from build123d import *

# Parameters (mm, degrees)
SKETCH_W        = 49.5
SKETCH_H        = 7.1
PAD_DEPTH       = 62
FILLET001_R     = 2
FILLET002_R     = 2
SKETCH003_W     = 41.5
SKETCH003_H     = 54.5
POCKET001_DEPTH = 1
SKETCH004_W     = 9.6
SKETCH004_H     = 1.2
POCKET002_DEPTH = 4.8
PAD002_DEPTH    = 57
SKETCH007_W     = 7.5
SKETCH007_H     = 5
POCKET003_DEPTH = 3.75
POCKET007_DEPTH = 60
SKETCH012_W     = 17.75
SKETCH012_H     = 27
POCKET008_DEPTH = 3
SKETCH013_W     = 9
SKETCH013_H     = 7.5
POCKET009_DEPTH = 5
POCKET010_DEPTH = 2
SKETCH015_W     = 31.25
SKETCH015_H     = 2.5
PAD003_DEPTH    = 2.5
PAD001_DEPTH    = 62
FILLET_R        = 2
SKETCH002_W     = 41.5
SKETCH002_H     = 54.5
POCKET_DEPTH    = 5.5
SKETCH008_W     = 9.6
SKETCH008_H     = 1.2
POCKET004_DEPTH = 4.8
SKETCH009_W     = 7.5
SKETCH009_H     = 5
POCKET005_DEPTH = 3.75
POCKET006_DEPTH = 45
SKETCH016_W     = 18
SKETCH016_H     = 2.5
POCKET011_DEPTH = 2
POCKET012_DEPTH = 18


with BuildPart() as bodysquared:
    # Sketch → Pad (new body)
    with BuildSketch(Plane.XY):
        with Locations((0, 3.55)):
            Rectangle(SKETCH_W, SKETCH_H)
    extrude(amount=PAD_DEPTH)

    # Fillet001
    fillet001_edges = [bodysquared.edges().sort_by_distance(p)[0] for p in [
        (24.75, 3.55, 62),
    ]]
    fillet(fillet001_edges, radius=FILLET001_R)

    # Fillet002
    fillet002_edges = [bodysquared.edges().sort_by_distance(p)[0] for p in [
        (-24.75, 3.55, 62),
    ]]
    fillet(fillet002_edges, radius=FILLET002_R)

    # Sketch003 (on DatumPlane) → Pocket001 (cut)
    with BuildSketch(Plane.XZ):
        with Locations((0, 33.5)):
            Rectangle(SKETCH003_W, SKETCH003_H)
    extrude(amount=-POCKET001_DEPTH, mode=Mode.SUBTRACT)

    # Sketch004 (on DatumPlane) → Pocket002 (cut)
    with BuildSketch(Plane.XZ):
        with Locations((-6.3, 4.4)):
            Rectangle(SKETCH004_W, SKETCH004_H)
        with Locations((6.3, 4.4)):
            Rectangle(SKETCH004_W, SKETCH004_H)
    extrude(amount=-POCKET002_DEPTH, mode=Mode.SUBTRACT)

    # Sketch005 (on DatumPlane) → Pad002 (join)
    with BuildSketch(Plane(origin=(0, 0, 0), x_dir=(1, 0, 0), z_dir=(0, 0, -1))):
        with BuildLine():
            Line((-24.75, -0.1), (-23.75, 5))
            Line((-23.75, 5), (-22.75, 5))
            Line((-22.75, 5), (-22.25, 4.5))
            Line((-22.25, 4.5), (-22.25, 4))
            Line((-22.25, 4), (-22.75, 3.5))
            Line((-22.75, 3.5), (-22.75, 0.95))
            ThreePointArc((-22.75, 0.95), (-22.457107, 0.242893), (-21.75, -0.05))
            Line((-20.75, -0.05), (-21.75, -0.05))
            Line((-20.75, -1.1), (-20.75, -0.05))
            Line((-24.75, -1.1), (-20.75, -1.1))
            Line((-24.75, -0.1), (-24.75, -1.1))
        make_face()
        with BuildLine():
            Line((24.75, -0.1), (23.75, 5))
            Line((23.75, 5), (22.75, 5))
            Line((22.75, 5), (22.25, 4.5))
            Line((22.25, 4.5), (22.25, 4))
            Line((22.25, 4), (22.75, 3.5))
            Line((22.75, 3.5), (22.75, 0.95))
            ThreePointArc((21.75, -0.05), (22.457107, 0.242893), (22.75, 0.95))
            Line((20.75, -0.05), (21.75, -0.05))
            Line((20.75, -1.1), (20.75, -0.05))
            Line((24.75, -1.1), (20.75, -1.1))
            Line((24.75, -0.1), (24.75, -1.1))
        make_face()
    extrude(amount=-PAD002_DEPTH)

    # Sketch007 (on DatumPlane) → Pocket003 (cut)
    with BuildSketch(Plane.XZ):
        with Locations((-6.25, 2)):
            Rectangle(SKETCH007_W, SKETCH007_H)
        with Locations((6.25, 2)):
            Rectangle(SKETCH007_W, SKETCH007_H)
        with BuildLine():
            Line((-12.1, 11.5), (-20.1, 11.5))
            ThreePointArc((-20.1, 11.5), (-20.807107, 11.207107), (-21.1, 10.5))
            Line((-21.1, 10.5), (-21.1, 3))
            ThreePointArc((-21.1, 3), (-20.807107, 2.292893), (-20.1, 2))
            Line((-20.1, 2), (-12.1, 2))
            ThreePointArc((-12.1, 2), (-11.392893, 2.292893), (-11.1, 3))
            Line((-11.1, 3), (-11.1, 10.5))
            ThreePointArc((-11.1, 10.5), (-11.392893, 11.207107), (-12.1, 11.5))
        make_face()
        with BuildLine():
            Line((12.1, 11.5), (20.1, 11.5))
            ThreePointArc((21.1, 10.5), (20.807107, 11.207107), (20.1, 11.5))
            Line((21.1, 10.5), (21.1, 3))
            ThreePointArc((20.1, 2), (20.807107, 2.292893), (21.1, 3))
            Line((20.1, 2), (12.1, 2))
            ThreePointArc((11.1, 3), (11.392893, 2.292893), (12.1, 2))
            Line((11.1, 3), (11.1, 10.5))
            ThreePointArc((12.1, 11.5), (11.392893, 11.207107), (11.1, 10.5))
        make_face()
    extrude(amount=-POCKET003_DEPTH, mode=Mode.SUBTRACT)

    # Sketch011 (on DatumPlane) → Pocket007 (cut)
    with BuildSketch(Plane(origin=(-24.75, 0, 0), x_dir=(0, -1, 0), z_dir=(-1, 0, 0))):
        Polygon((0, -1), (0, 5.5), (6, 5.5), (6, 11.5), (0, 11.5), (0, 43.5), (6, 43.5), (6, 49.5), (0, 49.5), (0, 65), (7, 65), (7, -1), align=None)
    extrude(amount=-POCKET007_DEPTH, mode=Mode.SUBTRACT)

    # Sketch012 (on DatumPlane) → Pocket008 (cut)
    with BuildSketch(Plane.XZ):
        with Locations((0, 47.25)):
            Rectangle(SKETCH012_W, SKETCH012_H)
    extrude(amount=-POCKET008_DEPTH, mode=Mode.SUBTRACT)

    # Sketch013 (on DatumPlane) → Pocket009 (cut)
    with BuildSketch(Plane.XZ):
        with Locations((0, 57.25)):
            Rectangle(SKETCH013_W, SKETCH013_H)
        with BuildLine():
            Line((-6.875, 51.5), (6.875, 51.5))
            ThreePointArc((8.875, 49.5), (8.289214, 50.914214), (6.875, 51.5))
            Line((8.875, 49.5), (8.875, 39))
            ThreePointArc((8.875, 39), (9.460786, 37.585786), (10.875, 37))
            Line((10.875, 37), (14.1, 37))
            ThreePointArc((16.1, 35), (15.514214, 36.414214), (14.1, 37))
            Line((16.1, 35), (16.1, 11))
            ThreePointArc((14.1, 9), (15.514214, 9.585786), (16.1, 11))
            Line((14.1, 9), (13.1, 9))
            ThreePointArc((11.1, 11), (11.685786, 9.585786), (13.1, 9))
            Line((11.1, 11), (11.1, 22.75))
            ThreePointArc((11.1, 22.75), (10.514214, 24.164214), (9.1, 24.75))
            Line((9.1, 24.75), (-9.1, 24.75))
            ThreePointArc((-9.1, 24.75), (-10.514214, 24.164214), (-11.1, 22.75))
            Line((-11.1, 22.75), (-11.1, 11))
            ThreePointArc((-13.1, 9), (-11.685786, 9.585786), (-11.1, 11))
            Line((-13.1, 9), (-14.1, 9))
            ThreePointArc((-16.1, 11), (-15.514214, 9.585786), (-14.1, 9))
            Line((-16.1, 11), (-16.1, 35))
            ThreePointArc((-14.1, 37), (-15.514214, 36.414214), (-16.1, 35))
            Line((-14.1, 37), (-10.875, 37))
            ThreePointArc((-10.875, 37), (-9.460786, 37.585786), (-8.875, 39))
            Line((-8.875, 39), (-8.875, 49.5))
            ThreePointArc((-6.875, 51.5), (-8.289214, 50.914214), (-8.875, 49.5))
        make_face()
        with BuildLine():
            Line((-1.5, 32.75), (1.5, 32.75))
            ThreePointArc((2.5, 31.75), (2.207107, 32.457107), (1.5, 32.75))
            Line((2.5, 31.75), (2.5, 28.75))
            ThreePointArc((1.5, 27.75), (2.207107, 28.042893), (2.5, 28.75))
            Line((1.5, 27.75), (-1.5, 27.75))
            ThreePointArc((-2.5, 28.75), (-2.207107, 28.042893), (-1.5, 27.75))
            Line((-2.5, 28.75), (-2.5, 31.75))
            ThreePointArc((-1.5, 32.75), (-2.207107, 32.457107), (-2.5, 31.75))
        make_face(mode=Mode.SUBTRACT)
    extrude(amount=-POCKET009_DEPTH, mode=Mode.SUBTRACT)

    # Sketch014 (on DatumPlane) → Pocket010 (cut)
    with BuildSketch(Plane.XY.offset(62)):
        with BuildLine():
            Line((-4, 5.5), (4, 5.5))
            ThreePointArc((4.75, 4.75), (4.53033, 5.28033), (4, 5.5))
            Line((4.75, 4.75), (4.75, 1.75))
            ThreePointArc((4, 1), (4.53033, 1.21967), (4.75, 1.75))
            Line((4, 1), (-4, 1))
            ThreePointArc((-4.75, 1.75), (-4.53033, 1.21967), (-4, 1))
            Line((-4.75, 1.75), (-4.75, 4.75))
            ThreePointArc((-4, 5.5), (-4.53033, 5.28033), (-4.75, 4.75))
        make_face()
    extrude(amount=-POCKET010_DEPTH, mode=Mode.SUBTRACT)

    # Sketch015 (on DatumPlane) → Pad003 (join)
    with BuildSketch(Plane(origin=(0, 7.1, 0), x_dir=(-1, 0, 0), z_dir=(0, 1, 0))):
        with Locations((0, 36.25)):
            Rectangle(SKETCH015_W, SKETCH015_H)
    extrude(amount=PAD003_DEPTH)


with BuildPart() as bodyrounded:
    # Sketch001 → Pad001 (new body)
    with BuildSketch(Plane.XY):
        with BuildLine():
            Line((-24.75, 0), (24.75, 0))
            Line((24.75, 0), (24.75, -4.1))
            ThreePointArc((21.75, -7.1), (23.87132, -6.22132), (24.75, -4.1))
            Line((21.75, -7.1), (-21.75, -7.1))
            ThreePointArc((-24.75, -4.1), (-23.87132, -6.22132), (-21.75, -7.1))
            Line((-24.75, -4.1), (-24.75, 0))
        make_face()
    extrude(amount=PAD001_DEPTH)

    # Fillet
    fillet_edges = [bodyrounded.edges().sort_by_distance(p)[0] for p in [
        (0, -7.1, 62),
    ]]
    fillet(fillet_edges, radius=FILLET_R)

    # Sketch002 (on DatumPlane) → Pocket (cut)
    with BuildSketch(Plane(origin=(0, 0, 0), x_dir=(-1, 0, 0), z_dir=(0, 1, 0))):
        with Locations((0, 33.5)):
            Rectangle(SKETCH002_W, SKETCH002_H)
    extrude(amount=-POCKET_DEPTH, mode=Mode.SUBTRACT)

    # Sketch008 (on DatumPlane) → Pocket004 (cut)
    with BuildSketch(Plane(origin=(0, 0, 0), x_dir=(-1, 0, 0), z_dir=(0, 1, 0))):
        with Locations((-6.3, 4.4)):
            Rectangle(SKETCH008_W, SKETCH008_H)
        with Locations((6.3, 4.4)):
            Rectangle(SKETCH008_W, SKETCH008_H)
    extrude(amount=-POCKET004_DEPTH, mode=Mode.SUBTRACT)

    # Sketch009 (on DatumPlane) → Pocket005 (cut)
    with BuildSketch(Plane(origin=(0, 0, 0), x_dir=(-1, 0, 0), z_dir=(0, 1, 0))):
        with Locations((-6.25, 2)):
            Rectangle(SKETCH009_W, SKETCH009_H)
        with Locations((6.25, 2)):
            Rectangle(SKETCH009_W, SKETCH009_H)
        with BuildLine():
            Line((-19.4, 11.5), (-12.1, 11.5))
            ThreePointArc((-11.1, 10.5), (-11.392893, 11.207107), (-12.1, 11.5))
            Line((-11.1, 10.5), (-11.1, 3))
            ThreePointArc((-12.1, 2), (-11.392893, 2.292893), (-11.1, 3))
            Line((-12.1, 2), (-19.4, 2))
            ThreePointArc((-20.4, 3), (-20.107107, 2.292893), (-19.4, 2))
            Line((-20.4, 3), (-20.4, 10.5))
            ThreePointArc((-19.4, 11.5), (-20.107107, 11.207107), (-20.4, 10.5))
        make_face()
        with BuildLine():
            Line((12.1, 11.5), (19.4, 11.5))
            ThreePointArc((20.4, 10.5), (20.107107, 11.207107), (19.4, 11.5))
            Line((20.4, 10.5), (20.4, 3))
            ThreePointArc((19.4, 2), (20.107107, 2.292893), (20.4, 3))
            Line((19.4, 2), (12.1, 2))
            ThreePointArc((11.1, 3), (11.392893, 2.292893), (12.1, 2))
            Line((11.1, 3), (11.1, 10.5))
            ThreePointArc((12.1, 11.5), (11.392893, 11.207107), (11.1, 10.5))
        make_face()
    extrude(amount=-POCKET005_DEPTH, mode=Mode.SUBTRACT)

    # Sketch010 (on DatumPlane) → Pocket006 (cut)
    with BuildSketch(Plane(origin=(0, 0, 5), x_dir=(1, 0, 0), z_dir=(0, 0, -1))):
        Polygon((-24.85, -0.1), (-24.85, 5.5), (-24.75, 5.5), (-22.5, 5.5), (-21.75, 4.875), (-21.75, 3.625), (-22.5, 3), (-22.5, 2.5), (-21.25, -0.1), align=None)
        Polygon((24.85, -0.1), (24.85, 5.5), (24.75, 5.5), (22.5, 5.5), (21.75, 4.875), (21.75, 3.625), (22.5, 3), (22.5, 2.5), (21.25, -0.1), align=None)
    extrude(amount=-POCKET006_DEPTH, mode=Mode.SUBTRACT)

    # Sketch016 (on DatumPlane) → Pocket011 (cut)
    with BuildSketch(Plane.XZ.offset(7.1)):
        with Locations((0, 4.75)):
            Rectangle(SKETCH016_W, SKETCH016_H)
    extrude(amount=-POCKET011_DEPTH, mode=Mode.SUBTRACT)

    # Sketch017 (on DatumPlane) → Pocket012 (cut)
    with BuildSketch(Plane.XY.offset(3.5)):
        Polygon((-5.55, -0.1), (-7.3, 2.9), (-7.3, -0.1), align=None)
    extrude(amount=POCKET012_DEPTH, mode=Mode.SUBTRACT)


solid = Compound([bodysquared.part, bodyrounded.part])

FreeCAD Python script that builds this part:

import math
import FreeCAD as App
import Part
import Sketcher
Q = App.Units.Quantity


def edges_at(feature, points):
    """Names of the edges that pass closest to the given points."""
    edges = feature.Shape.Edges
    near = lambda p: min(range(len(edges)), key=lambda i: edges[i].distToShape(Part.Vertex(*p))[0])
    return sorted({f"Edge{near(p) + 1}" for p in points})


def add_polygon(sketch, points):
    """Adds a closed chain of lines whose ends are joined by coincident constraints."""
    first, n = sketch.GeometryCount, len(points)
    for a, b in zip(points, points[1:] + points[:1]):
        sketch.addGeometry(Part.LineSegment(App.Vector(*a, 0), App.Vector(*b, 0)), False)
    for i in range(n):
        sketch.addConstraint(Sketcher.Constraint("Coincident", first + i, 2, first + (i + 1) % n, 1))

doc = App.newDocument("Part")
body = doc.addObject("PartDesign::Body", "Body")

sketch1 = body.newObject("Sketcher::SketchObject", "Sketch")
sketch1.AttachmentSupport = (doc.getObject("XY_Plane"), [""])
sketch1.MapMode = "FlatFace"
add_polygon(sketch1, [(-24.75, 7.1), (-24.75, 0), (24.75, 0), (24.75, 7.1)])
sketch1.addConstraint([
    Sketcher.Constraint("Vertical", 0),
    Sketcher.Constraint("Horizontal", 1),
    Sketcher.Constraint("Vertical", 2),
    Sketcher.Constraint("Horizontal", 3),
    Sketcher.Constraint("Symmetric", 0, 2, 1, 2, -1, 1),
    Sketcher.Constraint("DistanceX", 1, 1, 1, 2, Q("49.5 mm")),
    Sketcher.Constraint("DistanceY", 0, 2, 0, 1, Q("7.1 mm")),
])
pad1 = body.newObject("PartDesign::Pad", "Pad")
pad1.Profile = sketch1
pad1.Length = 62
doc.recompute()

fillet = body.newObject("PartDesign::Fillet", "Fillet")
fillet.Base = (pad1, edges_at(pad1, [(24.75, 3.55, 62)]))
fillet.Radius = 2
doc.recompute()

fillet2 = body.newObject("PartDesign::Fillet", "Fillet001")
fillet2.Base = (fillet, edges_at(fillet, [(-24.75, 3.55, 62)]))
fillet2.Radius = 2

sketch2 = body.newObject("Sketcher::SketchObject", "Sketch001")
sketch2.AttachmentSupport = (doc.getObject("XZ_Plane"), [""])
sketch2.MapMode = "FlatFace"
add_polygon(sketch2, [(-20.75, 60.75), (-20.75, 6.25), (20.75, 6.25), (20.75, 60.75)])
sketch2.addConstraint([
    Sketcher.Constraint("Vertical", 0),
    Sketcher.Constraint("Horizontal", 1),
    Sketcher.Constraint("Vertical", 2),
    Sketcher.Constraint("Horizontal", 3),
    Sketcher.Constraint("DistanceX", 1, 1, 1, 2, Q("41.5 mm")),
    Sketcher.Constraint("DistanceY", 0, 2, 0, 1, Q("54.5 mm")),
    Sketcher.Constraint("DistanceX", 0, 2, -1, 1, Q("20.75 mm")),
    Sketcher.Constraint("DistanceY", -1, 1, 0, 2, Q("6.25 mm")),
])
pocket1 = body.newObject("PartDesign::Pocket", "Pocket")
pocket1.Profile = sketch2
pocket1.Length = 1

sketch3 = body.newObject("Sketcher::SketchObject", "Sketch002")
sketch3.AttachmentSupport = (doc.getObject("XZ_Plane"), [""])
sketch3.MapMode = "FlatFace"
add_polygon(sketch3, [(-11.1, 5), (-11.1, 3.8), (-1.5, 3.8), (-1.5, 5)])
add_polygon(sketch3, [(1.5, 5), (1.5, 3.8), (11.1, 3.8), (11.1, 5)])
sketch3.addConstraint([
    Sketcher.Constraint("Vertical", 0),
    Sketcher.Constraint("Horizontal", 1),
    Sketcher.Constraint("Vertical", 2),
    Sketcher.Constraint("Horizontal", 3),
    Sketcher.Constraint("Vertical", 4),
    Sketcher.Constraint("Horizontal", 5),
    Sketcher.Constraint("Vertical", 6),
    Sketcher.Constraint("Horizontal", 7),
    Sketcher.Constraint("Symmetric", 1, 2, 4, 2, -2),
    Sketcher.Constraint("Symmetric", 3, 2, 6, 2, -2),
    Sketcher.Constraint("DistanceX", 1, 1, 1, 2, Q("9.6 mm")),
    Sketcher.Constraint("DistanceY", 0, 2, 0, 1, Q("1.2 mm")),
    Sketcher.Constraint("DistanceY", -1, 1, 2, 2, Q("5 mm")),
    Sketcher.Constraint("DistanceX", 1, 2, 4, 2, Q("3 mm")),
])
pocket2 = body.newObject("PartDesign::Pocket", "Pocket001")
pocket2.Profile = sketch3
pocket2.Length = 4.8

sketch4 = body.newObject("Sketcher::SketchObject", "Sketch003")
sketch4.AttachmentSupport = (doc.getObject("XY_Plane"), [""])
sketch4.MapMode = "FlatFace"
sketch4.addGeometry([
    Part.LineSegment(App.Vector(-23.75, -5, 0), App.Vector(-24.75, 0.1, 0)),
    Part.LineSegment(App.Vector(-24.75, 0.1, 0), App.Vector(-24.75, 1.1, 0)),
    Part.LineSegment(App.Vector(-24.75, 1.1, 0), App.Vector(-20.75, 1.1, 0)),
    Part.LineSegment(App.Vector(-20.75, 1.1, 0), App.Vector(-20.75, 0.05, 0)),
    Part.LineSegment(App.Vector(-20.75, 0.05, 0), App.Vector(-21.75, 0.05, 0)),
    Part.ArcOfCircle(Part.Circle(App.Vector(-21.750001, -0.949999, 0), App.Vector(0, 0, 1), 0.999999), math.radians(89.999957), math.radians(180.000043)),
    Part.LineSegment(App.Vector(-22.75, -0.95, 0), App.Vector(-22.75, -3.5, 0)),
    Part.LineSegment(App.Vector(-22.75, -3.5, 0), App.Vector(-22.25, -4, 0)),
    Part.LineSegment(App.Vector(-22.25, -4, 0), App.Vector(-22.25, -4.5, 0)),
    Part.LineSegment(App.Vector(-22.25, -4.5, 0), App.Vector(-22.75, -5, 0)),
    Part.LineSegment(App.Vector(-22.75, -5, 0), App.Vector(-23.75, -5, 0)),
    Part.LineSegment(App.Vector(24.75, 0.1, 0), App.Vector(23.75, -5, 0)),
    Part.LineSegment(App.Vector(23.75, -5, 0), App.Vector(22.75, -5, 0)),
    Part.LineSegment(App.Vector(22.75, -5, 0), App.Vector(22.25, -4.5, 0)),
    Part.LineSegment(App.Vector(22.25, -4.5, 0), App.Vector(22.25, -4, 0)),
    Part.LineSegment(App.Vector(22.25, -4, 0), App.Vector(22.75, -3.5, 0)),
    Part.LineSegment(App.Vector(22.75, -3.5, 0), App.Vector(22.75, -0.95, 0)),
    Part.ArcOfCircle(Part.Circle(App.Vector(21.750001, -0.949999, 0), App.Vector(0, 0, 1), 0.999999), math.radians(-0.000043), math.radians(90.000043)),
    Part.LineSegment(App.Vector(21.75, 0.05, 0), App.Vector(20.75, 0.05, 0)),
    Part.LineSegment(App.Vector(20.75, 0.05, 0), App.Vector(20.75, 1.1, 0)),
    Part.LineSegment(App.Vector(20.75, 1.1, 0), App.Vector(24.75, 1.1, 0)),
    Part.LineSegment(App.Vector(24.75, 1.1, 0), App.Vector(24.75, 0.1, 0)),
], False)
sketch4.addConstraint([
    Sketcher.Constraint("Coincident", 0, 2, 1, 1),
    Sketcher.Constraint("Coincident", 1, 2, 2, 1),
    Sketcher.Constraint("Coincident", 2, 2, 3, 1),
    Sketcher.Constraint("Coincident", 3, 2, 4, 1),
    Sketcher.Constraint("Tangent", 4, 2, 5, 1),
    Sketcher.Constraint("Tangent", 5, 2, 6, 1),
    Sketcher.Constraint("Coincident", 6, 2, 7, 1),
    Sketcher.Constraint("Coincident", 7, 2, 8, 1),
    Sketcher.Constraint("Coincident", 8, 2, 9, 1),
    Sketcher.Constraint("Coincident", 9, 2, 10, 1),
    Sketcher.Constraint("Coincident", 10, 2, 0, 1),
    Sketcher.Constraint("Coincident", 11, 2, 12, 1),
    Sketcher.Constraint("Coincident", 12, 2, 13, 1),
    Sketcher.Constraint("Coincident", 13, 2, 14, 1),
    Sketcher.Constraint("Coincident", 14, 2, 15, 1),
    Sketcher.Constraint("Coincident", 15, 2, 16, 1),
    Sketcher.Constraint("Tangent", 16, 2, 17, 1),
    Sketcher.Constraint("Tangent", 17, 2, 18, 1),
    Sketcher.Constraint("Coincident", 18, 2, 19, 1),
    Sketcher.Constraint("Coincident", 19, 2, 20, 1),
    Sketcher.Constraint("Coincident", 20, 2, 21, 1),
    Sketcher.Constraint("Coincident", 21, 2, 11, 1),
    Sketcher.Constraint("Vertical", 1),
    Sketcher.Constraint("Horizontal", 2),
    Sketcher.Constraint("Vertical", 3),
    Sketcher.Constraint("Horizontal", 4),
    Sketcher.Constraint("Vertical", 6),
    Sketcher.Constraint("Vertical", 8),
    Sketcher.Constraint("Horizontal", 10),
    Sketcher.Constraint("Horizontal", 12),
    Sketcher.Constraint("Vertical", 14),
    Sketcher.Constraint("Vertical", 16),
    Sketcher.Constraint("Horizontal", 18),
    Sketcher.Constraint("Vertical", 19),
    Sketcher.Constraint("Horizontal", 20),
    Sketcher.Constraint("Vertical", 21),
    Sketcher.Constraint("Equal", 5, 17),
    Sketcher.Constraint("Symmetric", 5, 3, 17, 3, -2),
    Sketcher.Constraint("Symmetric", 10, 2, 11, 2, -2),
    Sketcher.Constraint("Symmetric", 8, 2, 13, 2, -2),
    Sketcher.Constraint("Symmetric", 2, 2, 19, 2, -2),
    Sketcher.Constraint("Symmetric", 0, 2, 21, 2, -2),
    Sketcher.Constraint("Perpendicular", 7, 9),
    Sketcher.Constraint("Perpendicular", 9, 13),
    Sketcher.Constraint("Perpendicular", 13, 15),
    Sketcher.Constraint("Horizontal", 7, 2, 14, 2),
    Sketcher.Constraint("Horizontal", 6, 2, 15, 2),
    Sketcher.Constraint("Vertical", 6, 2, 9, 2),
    Sketcher.Constraint("Equal", 4, 10),
    Sketcher.Constraint("Equal", 18, 1),
    Sketcher.Constraint("Radius", 5, Q("0.999999 mm")),
    Sketcher.Constraint("DistanceX", 2, 1, 2, 2, Q("4 mm")),
    Sketcher.Constraint("DistanceX", 4, 2, 4, 1, Q("1 mm")),
    Sketcher.Constraint("DistanceY", 8, 2, 8, 1, Q("0.5 mm")),
    Sketcher.Constraint("DistanceY", 7, 2, -1, 1, Q("4 mm")),
    Sketcher.Constraint("DistanceY", 9, 2, -1, 1, Q("5 mm")),
    Sketcher.Constraint("DistanceX", 3, 2, 13, 2, Q("43 mm")),
    Sketcher.Constraint("DistanceY", 3, 2, 3, 1, Q("1.05 mm")),
    Sketcher.Constraint("DistanceY", 6, 2, 6, 1, Q("2.55 mm")),
])
pad2 = body.newObject("PartDesign::Pad", "Pad001")
pad2.Profile = sketch4
pad2.Length = 57

sketch5 = body.newObject("Sketcher::SketchObject", "Sketch004")
sketch5.AttachmentSupport = (doc.getObject("XZ_Plane"), [""])
sketch5.MapMode = "FlatFace"
add_polygon(sketch5, [(-10, 4.5), (-10, -0.5), (-2.5, -0.5), (-2.5, 4.5)])
add_polygon(sketch5, [(2.5, 4.5), (2.5, -0.5), (10, -0.5), (10, 4.5)])
sketch5.addGeometry(Part.LineSegment(App.Vector(-12.1, 11.5, 0), App.Vector(-20.1, 11.5, 0)), False)
sketch5.addGeometry(Part.ArcOfCircle(Part.Circle(App.Vector(-20.100001, 10.500001, 0), App.Vector(0, 0, 1), 0.999999), math.radians(89.999957), math.radians(180.000043)), False)
sketch5.addGeometry(Part.LineSegment(App.Vector(-21.1, 10.5, 0), App.Vector(-21.1, 3, 0)), False)
sketch5.addGeometry(Part.ArcOfCircle(Part.Circle(App.Vector(-20.100001, 2.999999, 0), App.Vector(0, 0, 1), 0.999999), math.radians(179.999957), math.radians(270.000043)), False)
sketch5.addGeometry(Part.LineSegment(App.Vector(-20.1, 2, 0), App.Vector(-12.1, 2, 0)), False)
sketch5.addGeometry(Part.ArcOfCircle(Part.Circle(App.Vector(-12.099999, 2.999999, 0), App.Vector(0, 0, 1), 0.999999), math.radians(-90.000043), math.radians(0.000043)), False)
sketch5.addGeometry(Part.LineSegment(App.Vector(-11.1, 3, 0), App.Vector(-11.1, 10.5, 0)), False)
sketch5.addGeometry(Part.ArcOfCircle(Part.Circle(App.Vector(-12.099999, 10.500001, 0), App.Vector(0, 0, 1), 0.999999), math.radians(-0.000043), math.radians(90.000043)), False)
sketch5.addGeometry(Part.LineSegment(App.Vector(20.1, 11.5, 0), App.Vector(12.1, 11.5, 0)), False)
sketch5.addGeometry(Part.ArcOfCircle(Part.Circle(App.Vector(12.099999, 10.500001, 0), App.Vector(0, 0, 1), 0.999999), math.radians(89.999957), math.radians(180.000043)), False)
sketch5.addGeometry(Part.LineSegment(App.Vector(11.1, 10.5, 0), App.Vector(11.1, 3, 0)), False)
sketch5.addGeometry(Part.ArcOfCircle(Part.Circle(App.Vector(12.099999, 2.999999, 0), App.Vector(0, 0, 1), 0.999999), math.radians(179.999957), math.radians(270.000043)), False)
sketch5.addGeometry(Part.LineSegment(App.Vector(12.1, 2, 0), App.Vector(20.1, 2, 0)), False)
sketch5.addGeometry(Part.ArcOfCircle(Part.Circle(App.Vector(20.100001, 2.999999, 0), App.Vector(0, 0, 1), 0.999999), math.radians(-90.000043), math.radians(0.000043)), False)
sketch5.addGeometry(Part.LineSegment(App.Vector(21.1, 3, 0), App.Vector(21.1, 10.5, 0)), False)
sketch5.addGeometry(Part.ArcOfCircle(Part.Circle(App.Vector(20.100001, 10.500001, 0), App.Vector(0, 0, 1), 0.999999), math.radians(-0.000043), math.radians(90.000043)), False)
sketch5.addConstraint([
    Sketcher.Constraint("Tangent", 8, 2, 9, 1),
    Sketcher.Constraint("Tangent", 9, 2, 10, 1),
    Sketcher.Constraint("Tangent", 10, 2, 11, 1),
    Sketcher.Constraint("Tangent", 11, 2, 12, 1),
    Sketcher.Constraint("Tangent", 12, 2, 13, 1),
    Sketcher.Constraint("Tangent", 13, 2, 14, 1),
    Sketcher.Constraint("Tangent", 14, 2, 15, 1),
    Sketcher.Constraint("Tangent", 15, 2, 8, 1),
    Sketcher.Constraint("Tangent", 16, 2, 17, 1),
    Sketcher.Constraint("Tangent", 17, 2, 18, 1),
    Sketcher.Constraint("Tangent", 18, 2, 19, 1),
    Sketcher.Constraint("Tangent", 19, 2, 20, 1),
    Sketcher.Constraint("Tangent", 20, 2, 21, 1),
    Sketcher.Constraint("Tangent", 21, 2, 22, 1),
    Sketcher.Constraint("Tangent", 22, 2, 23, 1),
    Sketcher.Constraint("Tangent", 23, 2, 16, 1),
    Sketcher.Constraint("Vertical", 0),
    Sketcher.Constraint("Horizontal", 1),
    Sketcher.Constraint("Vertical", 2),
    Sketcher.Constraint("Horizontal", 3),
    Sketcher.Constraint("Vertical", 4),
    Sketcher.Constraint("Horizontal", 5),
    Sketcher.Constraint("Vertical", 6),
    Sketcher.Constraint("Horizontal", 7),
    Sketcher.Constraint("Horizontal", 8),
    Sketcher.Constraint("Vertical", 10),
    Sketcher.Constraint("Horizontal", 12),
    Sketcher.Constraint("Vertical", 14),
    Sketcher.Constraint("Horizontal", 16),
    Sketcher.Constraint("Vertical", 18),
    Sketcher.Constraint("Horizontal", 20),
    Sketcher.Constraint("Vertical", 22),
    Sketcher.Constraint("Equal", 9, 11),
    Sketcher.Constraint("Equal", 11, 13),
    Sketcher.Constraint("Equal", 13, 15),
    Sketcher.Constraint("Equal", 15, 17),
    Sketcher.Constraint("Equal", 17, 19),
    Sketcher.Constraint("Equal", 19, 21),
    Sketcher.Constraint("Equal", 21, 23),
    Sketcher.Constraint("Symmetric", 15, 3, 17, 3, -2),
    Sketcher.Constraint("Symmetric", 11, 3, 21, 3, -2),
    Sketcher.Constraint("Symmetric", 1, 2, 4, 2, -2),
    Sketcher.Constraint("Symmetric", 3, 2, 6, 2, -2),
    Sketcher.Constraint("Equal", 7, 10),
    Sketcher.Constraint("Radius", 9, Q("0.999999 mm")),
    Sketcher.Constraint("DistanceX", 8, 2, 8, 1, Q("8 mm")),
    Sketcher.Constraint("DistanceY", 0, 2, 0, 1, Q("5 mm")),
    Sketcher.Constraint("DistanceX", 1, 1, 1, 2, Q("7.5 mm")),
    Sketcher.Constraint("DistanceY", -1, 1, 11, 3, Q("2.999999 mm")),
    Sketcher.Constraint("DistanceX", 0, 2, -1, 1, Q("10 mm")),
    Sketcher.Constraint("DistanceY", 0, 2, 15, 3, Q("11.000001 mm")),
    Sketcher.Constraint("DistanceX", 9, 3, -1, 1, Q("20.100001 mm")),
])
pocket3 = body.newObject("PartDesign::Pocket", "Pocket002")
pocket3.Profile = sketch5
pocket3.Length = 3.75

sketch6 = body.newObject("Sketcher::SketchObject", "Sketch005")
sketch6.AttachmentSupport = (doc.getObject("YZ_Plane"), [""])
sketch6.MapMode = "FlatFace"
sketch6.AttachmentOffset = App.Placement(App.Vector(0, 0, -24.75), App.Rotation())
add_polygon(sketch6, [(0, 5.5), (0, -1), (-7, -1), (-7, 65), (0, 65), (0, 49.5), (-6, 49.5), (-6, 43.5), (0, 43.5), (0, 11.5), (-6, 11.5), (-6, 5.5)])
sketch6.addConstraint([
    Sketcher.Constraint("Vertical", 0),
    Sketcher.Constraint("Horizontal", 1),
    Sketcher.Constraint("Vertical", 2),
    Sketcher.Constraint("Horizontal", 3),
    Sketcher.Constraint("Vertical", 4),
    Sketcher.Constraint("Horizontal", 5),
    Sketcher.Constraint("Vertical", 6),
    Sketcher.Constraint("Horizontal", 7),
    Sketcher.Constraint("Vertical", 8),
    Sketcher.Constraint("Horizontal", 9),
    Sketcher.Constraint("Vertical", 10),
    Sketcher.Constraint("Horizontal", 11),
    Sketcher.Constraint("PointOnObject", 0, 2, -2),
    Sketcher.Constraint("PointOnObject", 3, 2, -2),
    Sketcher.Constraint("PointOnObject", 7, 2, -2),
    Sketcher.Constraint("Vertical", 6, 2, 9, 2),
    Sketcher.Constraint("Equal", 11, 6),
    Sketcher.Constraint("Equal", 6, 10),
    Sketcher.Constraint("DistanceX", 1, 2, 1, 1, Q("7 mm")),
    Sketcher.Constraint("DistanceX", 5, 2, 5, 1, Q("6 mm")),
    Sketcher.Constraint("DistanceY", 2, 1, 2, 2, Q("66 mm")),
    Sketcher.Constraint("DistanceY", 8, 2, 8, 1, Q("32 mm")),
    Sketcher.Constraint("DistanceY", 0, 2, 0, 1, Q("6.5 mm")),
    Sketcher.Constraint("DistanceY", 0, 2, -1, 1, Q("1 mm")),
])
pocket4 = body.newObject("PartDesign::Pocket", "Pocket003")
pocket4.Profile = sketch6
pocket4.Length = 60
pocket4.Reversed = True

sketch7 = body.newObject("Sketcher::SketchObject", "Sketch006")
sketch7.AttachmentSupport = (doc.getObject("XZ_Plane"), [""])
sketch7.MapMode = "FlatFace"
add_polygon(sketch7, [(-8.875, 60.75), (-8.875, 33.75), (8.875, 33.75), (8.875, 60.75)])
sketch7.addConstraint([
    Sketcher.Constraint("Vertical", 0),
    Sketcher.Constraint("Horizontal", 1),
    Sketcher.Constraint("Vertical", 2),
    Sketcher.Constraint("Horizontal", 3),
    Sketcher.Constraint("DistanceY", 0, 2, 0, 1, Q("27 mm")),
    Sketcher.Constraint("DistanceX", 1, 1, 1, 2, Q("17.75 mm")),
    Sketcher.Constraint("DistanceY", -1, 1, 0, 2, Q("33.75 mm")),
    Sketcher.Constraint("DistanceX", 0, 2, -1, 1, Q("8.875 mm")),
])
pocket5 = body.newObject("PartDesign::Pocket", "Pocket004")
pocket5.Profile = sketch7
pocket5.Length = 3

sketch8 = body.newObject("Sketcher::SketchObject", "Sketch007")
sketch8.AttachmentSupport = (doc.getObject("XZ_Plane"), [""])
sketch8.MapMode = "FlatFace"
add_polygon(sketch8, [(-4.5, 61), (-4.5, 53.5), (4.5, 53.5), (4.5, 61)])
sketch8.addGeometry(Part.LineSegment(App.Vector(6.875, 51.5, 0), App.Vector(-6.875, 51.5, 0)), False)
sketch8.addGeometry(Part.ArcOfCircle(Part.Circle(App.Vector(-6.875001, 49.500001, 0), App.Vector(0, 0, 1), 1.999999), math.radians(89.999957), math.radians(180.000043)), False)
sketch8.addGeometry(Part.LineSegment(App.Vector(-8.875, 49.5, 0), App.Vector(-8.875, 39, 0)), False)
sketch8.addGeometry(Part.ArcOfCircle(Part.Circle(App.Vector(-10.874999, 38.999999, 0), App.Vector(0, 0, 1), 1.999999), math.radians(-90.000043), math.radians(0.000043)), False)
sketch8.addGeometry(Part.LineSegment(App.Vector(-10.875, 37, 0), App.Vector(-14.1, 37, 0)), False)
sketch8.addGeometry(Part.ArcOfCircle(Part.Circle(App.Vector(-14.100001, 35.000001, 0), App.Vector(0, 0, 1), 1.999999), math.radians(89.999957), math.radians(180.000043)), False)
sketch8.addGeometry(Part.LineSegment(App.Vector(-16.1, 35, 0), App.Vector(-16.1, 11, 0)), False)
sketch8.addGeometry(Part.ArcOfCircle(Part.Circle(App.Vector(-14.100001, 10.999999, 0), App.Vector(0, 0, 1), 1.999999), math.radians(179.999957), math.radians(270.000043)), False)
sketch8.addGeometry(Part.LineSegment(App.Vector(-14.1, 9, 0), App.Vector(-13.1, 9, 0)), False)
sketch8.addGeometry(Part.ArcOfCircle(Part.Circle(App.Vector(-13.099999, 10.999999, 0), App.Vector(0, 0, 1), 1.999999), math.radians(-90.000043), math.radians(0.000043)), False)
sketch8.addGeometry(Part.LineSegment(App.Vector(-11.1, 11, 0), App.Vector(-11.1, 22.75, 0)), False)
sketch8.addGeometry(Part.ArcOfCircle(Part.Circle(App.Vector(-9.100001, 22.750001, 0), App.Vector(0, 0, 1), 1.999999), math.radians(89.999957), math.radians(180.000043)), False)
sketch8.addGeometry(Part.LineSegment(App.Vector(-9.1, 24.75, 0), App.Vector(9.1, 24.75, 0)), False)
sketch8.addGeometry(Part.ArcOfCircle(Part.Circle(App.Vector(9.100001, 22.750001, 0), App.Vector(0, 0, 1), 1.999999), math.radians(-0.000043), math.radians(90.000043)), False)
sketch8.addGeometry(Part.LineSegment(App.Vector(11.1, 22.75, 0), App.Vector(11.1, 11, 0)), False)
sketch8.addGeometry(Part.ArcOfCircle(Part.Circle(App.Vector(13.099999, 10.999999, 0), App.Vector(0, 0, 1), 1.999999), math.radians(179.999957), math.radians(270.000043)), False)
sketch8.addGeometry(Part.LineSegment(App.Vector(13.1, 9, 0), App.Vector(14.1, 9, 0)), False)
sketch8.addGeometry(Part.ArcOfCircle(Part.Circle(App.Vector(14.100001, 10.999999, 0), App.Vector(0, 0, 1), 1.999999), math.radians(-90.000043), math.radians(0.000043)), False)
sketch8.addGeometry(Part.LineSegment(App.Vector(16.1, 11, 0), App.Vector(16.1, 35, 0)), False)
sketch8.addGeometry(Part.ArcOfCircle(Part.Circle(App.Vector(14.100001, 35.000001, 0), App.Vector(0, 0, 1), 1.999999), math.radians(-0.000043), math.radians(90.000043)), False)
sketch8.addGeometry(Part.LineSegment(App.Vector(14.1, 37, 0), App.Vector(10.875, 37, 0)), False)
sketch8.addGeometry(Part.ArcOfCircle(Part.Circle(App.Vector(10.874999, 38.999999, 0), App.Vector(0, 0, 1), 1.999999), math.radians(179.999957), math.radians(270.000043)), False)
sketch8.addGeometry(Part.LineSegment(App.Vector(8.875, 39, 0), App.Vector(8.875, 49.5, 0)), False)
sketch8.addGeometry(Part.ArcOfCircle(Part.Circle(App.Vector(6.875001, 49.500001, 0), App.Vector(0, 0, 1), 1.999999), math.radians(-0.000043), math.radians(90.000043)), False)
sketch8.addGeometry(Part.LineSegment(App.Vector(-1.5, 32.75, 0), App.Vector(1.5, 32.75, 0)), False)
sketch8.addGeometry(Part.ArcOfCircle(Part.Circle(App.Vector(1.500001, 31.750001, 0), App.Vector(0, 0, 1), 0.999999), math.radians(-0.000043), math.radians(90.000043)), False)
sketch8.addGeometry(Part.LineSegment(App.Vector(2.5, 31.75, 0), App.Vector(2.5, 28.75, 0)), False)
sketch8.addGeometry(Part.ArcOfCircle(Part.Circle(App.Vector(1.500001, 28.749999, 0), App.Vector(0, 0, 1), 0.999999), math.radians(-90.000043), math.radians(0.000043)), False)
sketch8.addGeometry(Part.LineSegment(App.Vector(1.5, 27.75, 0), App.Vector(-1.5, 27.75, 0)), False)
sketch8.addGeometry(Part.ArcOfCircle(Part.Circle(App.Vector(-1.500001, 28.749999, 0), App.Vector(0, 0, 1), 0.999999), math.radians(179.999957), math.radians(270.000043)), False)
sketch8.addGeometry(Part.LineSegment(App.Vector(-2.5, 28.75, 0), App.Vector(-2.5, 31.75, 0)), False)
sketch8.addGeometry(Part.ArcOfCircle(Part.Circle(App.Vector(-1.500001, 31.750001, 0), App.Vector(0, 0, 1), 0.999999), math.radians(89.999957), math.radians(180.000043)), False)
sketch8.addConstraint([
    Sketcher.Constraint("Tangent", 4, 2, 5, 1),
    Sketcher.Constraint("Tangent", 5, 2, 6, 1),
    Sketcher.Constraint("Tangent", 6, 2, 7, 2),
    Sketcher.Constraint("Tangent", 7, 1, 8, 1),
    Sketcher.Constraint("Tangent", 8, 2, 9, 1),
    Sketcher.Constraint("Tangent", 9, 2, 10, 1),
    Sketcher.Constraint("Tangent", 10, 2, 11, 1),
    Sketcher.Constraint("Tangent", 11, 2, 12, 1),
    Sketcher.Constraint("Tangent", 12, 2, 13, 1),
    Sketcher.Constraint("Tangent", 13, 2, 14, 1),
    Sketcher.Constraint("Tangent", 14, 2, 15, 2),
    Sketcher.Constraint("Tangent", 15, 1, 16, 1),
    Sketcher.Constraint("Tangent", 16, 2, 17, 2),
    Sketcher.Constraint("Tangent", 17, 1, 18, 1),
    Sketcher.Constraint("Tangent", 18, 2, 19, 1),
    Sketcher.Constraint("Tangent", 19, 2, 20, 1),
    Sketcher.Constraint("Tangent", 20, 2, 21, 1),
    Sketcher.Constraint("Tangent", 21, 2, 22, 1),
    Sketcher.Constraint("Tangent", 22, 2, 23, 1),
    Sketcher.Constraint("Tangent", 23, 2, 24, 1),
    Sketcher.Constraint("Tangent", 24, 2, 25, 2),
    Sketcher.Constraint("Tangent", 25, 1, 26, 1),
    Sketcher.Constraint("Tangent", 26, 2, 27, 1),
    Sketcher.Constraint("Tangent", 27, 2, 4, 1),
    Sketcher.Constraint("Tangent", 28, 2, 29, 2),
    Sketcher.Constraint("Tangent", 29, 1, 30, 1),
    Sketcher.Constraint("Tangent", 30, 2, 31, 2),
    Sketcher.Constraint("Tangent", 31, 1, 32, 1),
    Sketcher.Constraint("Tangent", 32, 2, 33, 2),
    Sketcher.Constraint("Tangent", 33, 1, 34, 1),
    Sketcher.Constraint("Tangent", 34, 2, 35, 2),
    Sketcher.Constraint("Tangent", 35, 1, 28, 1),
    Sketcher.Constraint("Vertical", 0),
    Sketcher.Constraint("Horizontal", 1),
    Sketcher.Constraint("Vertical", 2),
    Sketcher.Constraint("Horizontal", 3),
    Sketcher.Constraint("Horizontal", 4),
    Sketcher.Constraint("Vertical", 6),
    Sketcher.Constraint("Horizontal", 8),
    Sketcher.Constraint("Vertical", 10),
    Sketcher.Constraint("Horizontal", 12),
    Sketcher.Constraint("Vertical", 14),
    Sketcher.Constraint("Horizontal", 16),
    Sketcher.Constraint("Vertical", 18),
    Sketcher.Constraint("Horizontal", 20),
    Sketcher.Constraint("Vertical", 22),
    Sketcher.Constraint("Horizontal", 24),
    Sketcher.Constraint("Vertical", 26),
    Sketcher.Constraint("Horizontal", 28),
    Sketcher.Constraint("Vertical", 30),
    Sketcher.Constraint("Horizontal", 32),
    Sketcher.Constraint("Vertical", 34),
    Sketcher.Constraint("Equal", 5, 7),
    Sketcher.Constraint("Equal", 7, 9),
    Sketcher.Constraint("Equal", 9, 11),
    Sketcher.Constraint("Equal", 11, 13),
    Sketcher.Constraint("Equal", 13, 15),
    Sketcher.Constraint("Equal", 15, 17),
    Sketcher.Constraint("Equal", 17, 19),
    Sketcher.Constraint("Equal", 19, 21),
    Sketcher.Constraint("Equal", 21, 23),
    Sketcher.Constraint("Equal", 23, 25),
    Sketcher.Constraint("Equal", 25, 27),
    Sketcher.Constraint("Equal", 29, 31),
    Sketcher.Constraint("Equal", 31, 33),
    Sketcher.Constraint("Equal", 33, 35),
    Sketcher.Constraint("Symmetric", 13, 3, 19, 3, -2),
    Sketcher.Constraint("Symmetric", 9, 3, 23, 3, -2),
    Sketcher.Constraint("Equal", 8, 24),
    Sketcher.Constraint("Equal", 32, 30),
    Sketcher.Constraint("Radius", 5, Q("1.999999 mm")),
    Sketcher.Constraint("Radius", 29, Q("0.999999 mm")),
    Sketcher.Constraint("DistanceX", 1, 1, 1, 2, Q("9 mm")),
    Sketcher.Constraint("DistanceX", 12, 1, 12, 2, Q("1 mm")),
    Sketcher.Constraint("DistanceX", 28, 1, 28, 2, Q("3 mm")),
    Sketcher.Constraint("DistanceY", 10, 2, 10, 1, Q("24 mm")),
    Sketcher.Constraint("DistanceX", 16, 1, 16, 2, Q("18.2 mm")),
    Sketcher.Constraint("DistanceY", 0, 2, 0, 1, Q("7.5 mm")),
    Sketcher.Constraint("DistanceY", 6, 2, 6, 1, Q("10.5 mm")),
    Sketcher.Constraint("DistanceY", -1, 1, 7, 3, Q("38.999999 mm")),
    Sketcher.Constraint("DistanceY", -1, 1, 2, 2, Q("61 mm")),
    Sketcher.Constraint("DistanceY", 17, 3, 29, 3, Q("8.999999 mm")),
    Sketcher.Constraint("DistanceX", 4, 2, 4, 1, Q("13.75 mm")),
    Sketcher.Constraint("DistanceY", 14, 1, 14, 2, Q("11.75 mm")),
    Sketcher.Constraint("DistanceX", -1, 1, 29, 3, Q("1.500001 mm")),
    Sketcher.Constraint("DistanceX", 0, 2, -1, 1, Q("4.5 mm")),
])
pocket6 = body.newObject("PartDesign::Pocket", "Pocket005")
pocket6.Profile = sketch8
pocket6.Length = 5

sketch9 = body.newObject("Sketcher::SketchObject", "Sketch008")
sketch9.AttachmentSupport = (doc.getObject("XY_Plane"), [""])
sketch9.MapMode = "FlatFace"
sketch9.AttachmentOffset = App.Placement(App.Vector(0, 0, 62), App.Rotation())
sketch9.addGeometry([
    Part.LineSegment(App.Vector(4, 5.5, 0), App.Vector(-4, 5.5, 0)),
    Part.ArcOfCircle(Part.Circle(App.Vector(-4, 4.75, 0), App.Vector(0, 0, 1), 0.75), math.radians(90.000022), math.radians(179.999978)),
    Part.LineSegment(App.Vector(-4.75, 4.75, 0), App.Vector(-4.75, 1.75, 0)),
    Part.ArcOfCircle(Part.Circle(App.Vector(-4, 1.75, 0), App.Vector(0, 0, 1), 0.75), math.radians(-179.999978), math.radians(-90.000022)),
    Part.LineSegment(App.Vector(-4, 1, 0), App.Vector(4, 1, 0)),
    Part.ArcOfCircle(Part.Circle(App.Vector(4, 1.75, 0), App.Vector(0, 0, 1), 0.75), math.radians(-89.999978), math.radians(-0.000022)),
    Part.LineSegment(App.Vector(4.75, 1.75, 0), App.Vector(4.75, 4.75, 0)),
    Part.ArcOfCircle(Part.Circle(App.Vector(4, 4.75, 0), App.Vector(0, 0, 1), 0.75), math.radians(0.000022), math.radians(89.999978)),
], False)
sketch9.addConstraint([
    Sketcher.Constraint("Tangent", 0, 2, 1, 1),
    Sketcher.Constraint("Tangent", 1, 2, 2, 1),
    Sketcher.Constraint("Tangent", 2, 2, 3, 1),
    Sketcher.Constraint("Tangent", 3, 2, 4, 1),
    Sketcher.Constraint("Tangent", 4, 2, 5, 1),
    Sketcher.Constraint("Tangent", 5, 2, 6, 1),
    Sketcher.Constraint("Tangent", 6, 2, 7, 1),
    Sketcher.Constraint("Tangent", 7, 2, 0, 1),
    Sketcher.Constraint("Horizontal", 0),
    Sketcher.Constraint("Vertical", 2),
    Sketcher.Constraint("Horizontal", 4),
    Sketcher.Constraint("Vertical", 6),
    Sketcher.Constraint("Equal", 1, 3),
    Sketcher.Constraint("Equal", 3, 5),
    Sketcher.Constraint("Equal", 5, 7),
    Sketcher.Constraint("DistanceX", 0, 2, 0, 1, Q("8 mm")),
    Sketcher.Constraint("DistanceY", 2, 2, 2, 1, Q("3 mm")),
    Sketcher.Constraint("Radius", 1, Q("0.75 mm")),
    Sketcher.Constraint("DistanceX", 1, 3, -1, 1, Q("4 mm")),
    Sketcher.Constraint("DistanceY", -1, 1, 3, 2, Q("1 mm")),
])
pocket7 = body.newObject("PartDesign::Pocket", "Pocket006")
pocket7.Profile = sketch9
pocket7.Length = 2

sketch10 = body.newObject("Sketcher::SketchObject", "Sketch009")
sketch10.AttachmentSupport = (doc.getObject("XZ_Plane"), [""])
sketch10.MapMode = "FlatFace"
sketch10.AttachmentOffset = App.Placement(App.Vector(0, 0, -7.1), App.Rotation())
add_polygon(sketch10, [(15.625, 37.5), (15.625, 35), (-15.625, 35), (-15.625, 37.5)])
sketch10.addConstraint([
    Sketcher.Constraint("Vertical", 0),
    Sketcher.Constraint("Horizontal", 1),
    Sketcher.Constraint("Vertical", 2),
    Sketcher.Constraint("Horizontal", 3),
    Sketcher.Constraint("DistanceY", 0, 2, 0, 1, Q("2.5 mm")),
    Sketcher.Constraint("DistanceY", -1, 1, 0, 2, Q("35 mm")),
    Sketcher.Constraint("DistanceX", 1, 2, 1, 1, Q("31.25 mm")),
    Sketcher.Constraint("DistanceX", -1, 1, 0, 2, Q("15.625 mm")),
])
pad3 = body.newObject("PartDesign::Pad", "Pad002")
pad3.Profile = sketch10
pad3.Length = 2.5
pad3.Reversed = True
body2 = doc.addObject("PartDesign::Body", "Body001")

sketch11 = body2.newObject("Sketcher::SketchObject", "Sketch010")
sketch11.AttachmentSupport = (doc.getObject("XY_Plane001"), [""])
sketch11.MapMode = "FlatFace"
sketch11.addGeometry([
    Part.LineSegment(App.Vector(24.75, 0, 0), App.Vector(-24.75, 0, 0)),
    Part.LineSegment(App.Vector(-24.75, 0, 0), App.Vector(-24.75, -4.1, 0)),
    Part.ArcOfCircle(Part.Circle(App.Vector(-21.749999, -4.099999, 0), App.Vector(0, 0, 1), 3.000001), math.radians(-179.999978), math.radians(-90.000022)),
    Part.LineSegment(App.Vector(-21.75, -7.1, 0), App.Vector(21.75, -7.1, 0)),
    Part.ArcOfCircle(Part.Circle(App.Vector(21.749999, -4.099999, 0), App.Vector(0, 0, 1), 3.000001), math.radians(-89.999978), math.radians(-0.000022)),
    Part.LineSegment(App.Vector(24.75, -4.1, 0), App.Vector(24.75, 0, 0)),
], False)
sketch11.addConstraint([
    Sketcher.Constraint("Coincident", 0, 2, 1, 1),
    Sketcher.Constraint("Tangent", 1, 2, 2, 1),
    Sketcher.Constraint("Tangent", 2, 2, 3, 1),
    Sketcher.Constraint("Tangent", 3, 2, 4, 1),
    Sketcher.Constraint("Tangent", 4, 2, 5, 1),
    Sketcher.Constraint("Coincident", 5, 2, 0, 1),
    Sketcher.Constraint("Horizontal", 0),
    Sketcher.Constraint("Vertical", 1),
    Sketcher.Constraint("Horizontal", 3),
    Sketcher.Constraint("Vertical", 5),
    Sketcher.Constraint("Equal", 2, 4),
    Sketcher.Constraint("Symmetric", 0, 2, 5, 2, -1, 1),
    Sketcher.Constraint("Radius", 2, Q("3.000001 mm")),
    Sketcher.Constraint("DistanceX", 0, 2, 0, 1, Q("49.5 mm")),
    Sketcher.Constraint("DistanceY", 1, 2, 1, 1, Q("4.1 mm")),
])
pad4 = body2.newObject("PartDesign::Pad", "Pad003")
pad4.Profile = sketch11
pad4.Length = 62
doc.recompute()

fillet3 = body2.newObject("PartDesign::Fillet", "Fillet002")
fillet3.Base = (pad4, edges_at(pad4, [(0, -7.1, 62)]))
fillet3.Radius = 2

sketch12 = body2.newObject("Sketcher::SketchObject", "Sketch011")
sketch12.AttachmentSupport = (doc.getObject("XZ_Plane001"), [""])
sketch12.MapMode = "FlatFace"
add_polygon(sketch12, [(20.75, 60.75), (20.75, 6.25), (-20.75, 6.25), (-20.75, 60.75)])
sketch12.addConstraint([
    Sketcher.Constraint("Vertical", 0),
    Sketcher.Constraint("Horizontal", 1),
    Sketcher.Constraint("Vertical", 2),
    Sketcher.Constraint("Horizontal", 3),
    Sketcher.Constraint("DistanceX", 1, 2, 1, 1, Q("41.5 mm")),
    Sketcher.Constraint("DistanceY", 0, 2, 0, 1, Q("54.5 mm")),
    Sketcher.Constraint("DistanceX", -1, 1, 0, 2, Q("20.75 mm")),
    Sketcher.Constraint("DistanceY", -1, 1, 0, 2, Q("6.25 mm")),
])
pocket8 = body2.newObject("PartDesign::Pocket", "Pocket007")
pocket8.Profile = sketch12
pocket8.Length = 5.5
pocket8.Reversed = True

sketch13 = body2.newObject("Sketcher::SketchObject", "Sketch012")
sketch13.AttachmentSupport = (doc.getObject("XZ_Plane001"), [""])
sketch13.MapMode = "FlatFace"
add_polygon(sketch13, [(11.1, 5), (11.1, 3.8), (1.5, 3.8), (1.5, 5)])
add_polygon(sketch13, [(-1.5, 5), (-1.5, 3.8), (-11.1, 3.8), (-11.1, 5)])
sketch13.addConstraint([
    Sketcher.Constraint("Vertical", 0),
    Sketcher.Constraint("Horizontal", 1),
    Sketcher.Constraint("Vertical", 2),
    Sketcher.Constraint("Horizontal", 3),
    Sketcher.Constraint("Vertical", 4),
    Sketcher.Constraint("Horizontal", 5),
    Sketcher.Constraint("Vertical", 6),
    Sketcher.Constraint("Horizontal", 7),
    Sketcher.Constraint("Symmetric", 1, 2, 4, 2, -2),
    Sketcher.Constraint("Symmetric", 3, 2, 6, 2, -2),
    Sketcher.Constraint("DistanceX", 1, 2, 1, 1, Q("9.6 mm")),
    Sketcher.Constraint("DistanceY", 0, 2, 0, 1, Q("1.2 mm")),
    Sketcher.Constraint("DistanceY", -1, 1, 2, 2, Q("5 mm")),
    Sketcher.Constraint("DistanceX", 4, 2, 1, 2, Q("3 mm")),
])
pocket9 = body2.newObject("PartDesign::Pocket", "Pocket008")
pocket9.Profile = sketch13
pocket9.Length = 4.8
pocket9.Reversed = True

sketch14 = body2.newObject("Sketcher::SketchObject", "Sketch013")
sketch14.AttachmentSupport = (doc.getObject("XZ_Plane001"), [""])
sketch14.MapMode = "FlatFace"
add_polygon(sketch14, [(10, 4.5), (10, -0.5), (2.5, -0.5), (2.5, 4.5)])
add_polygon(sketch14, [(-2.5, 4.5), (-2.5, -0.5), (-10, -0.5), (-10, 4.5)])
sketch14.addGeometry(Part.LineSegment(App.Vector(12.1, 11.5, 0), App.Vector(19.4, 11.5, 0)), False)
sketch14.addGeometry(Part.ArcOfCircle(Part.Circle(App.Vector(19.400001, 10.500001, 0), App.Vector(0, 0, 1), 0.999999), math.radians(-0.000043), math.radians(90.000043)), False)
sketch14.addGeometry(Part.LineSegment(App.Vector(20.4, 10.5, 0), App.Vector(20.4, 3, 0)), False)
sketch14.addGeometry(Part.ArcOfCircle(Part.Circle(App.Vector(19.400001, 2.999999, 0), App.Vector(0, 0, 1), 0.999999), math.radians(-90.000043), math.radians(0.000043)), False)
sketch14.addGeometry(Part.LineSegment(App.Vector(19.4, 2, 0), App.Vector(12.1, 2, 0)), False)
sketch14.addGeometry(Part.ArcOfCircle(Part.Circle(App.Vector(12.099999, 2.999999, 0), App.Vector(0, 0, 1), 0.999999), math.radians(179.999957), math.radians(270.000043)), False)
sketch14.addGeometry(Part.LineSegment(App.Vector(11.1, 3, 0), App.Vector(11.1, 10.5, 0)), False)
sketch14.addGeometry(Part.ArcOfCircle(Part.Circle(App.Vector(12.099999, 10.500001, 0), App.Vector(0, 0, 1), 0.999999), math.radians(89.999957), math.radians(180.000043)), False)
sketch14.addGeometry(Part.LineSegment(App.Vector(-19.4, 11.5, 0), App.Vector(-12.1, 11.5, 0)), False)
sketch14.addGeometry(Part.ArcOfCircle(Part.Circle(App.Vector(-12.099999, 10.500001, 0), App.Vector(0, 0, 1), 0.999999), math.radians(-0.000043), math.radians(90.000043)), False)
sketch14.addGeometry(Part.LineSegment(App.Vector(-11.1, 10.5, 0), App.Vector(-11.1, 3, 0)), False)
sketch14.addGeometry(Part.ArcOfCircle(Part.Circle(App.Vector(-12.099999, 2.999999, 0), App.Vector(0, 0, 1), 0.999999), math.radians(-90.000043), math.radians(0.000043)), False)
sketch14.addGeometry(Part.LineSegment(App.Vector(-12.1, 2, 0), App.Vector(-19.4, 2, 0)), False)
sketch14.addGeometry(Part.ArcOfCircle(Part.Circle(App.Vector(-19.400001, 2.999999, 0), App.Vector(0, 0, 1), 0.999999), math.radians(179.999957), math.radians(270.000043)), False)
sketch14.addGeometry(Part.LineSegment(App.Vector(-20.4, 3, 0), App.Vector(-20.4, 10.5, 0)), False)
sketch14.addGeometry(Part.ArcOfCircle(Part.Circle(App.Vector(-19.400001, 10.500001, 0), App.Vector(0, 0, 1), 0.999999), math.radians(89.999957), math.radians(180.000043)), False)
sketch14.addConstraint([
    Sketcher.Constraint("Tangent", 8, 2, 9, 2),
    Sketcher.Constraint("Tangent", 9, 1, 10, 1),
    Sketcher.Constraint("Tangent", 10, 2, 11, 2),
    Sketcher.Constraint("Tangent", 11, 1, 12, 1),
    Sketcher.Constraint("Tangent", 12, 2, 13, 2),
    Sketcher.Constraint("Tangent", 13, 1, 14, 1),
    Sketcher.Constraint("Tangent", 14, 2, 15, 2),
    Sketcher.Constraint("Tangent", 15, 1, 8, 1),
    Sketcher.Constraint("Tangent", 16, 2, 17, 2),
    Sketcher.Constraint("Tangent", 17, 1, 18, 1),
    Sketcher.Constraint("Tangent", 18, 2, 19, 2),
    Sketcher.Constraint("Tangent", 19, 1, 20, 1),
    Sketcher.Constraint("Tangent", 20, 2, 21, 2),
    Sketcher.Constraint("Tangent", 21, 1, 22, 1),
    Sketcher.Constraint("Tangent", 22, 2, 23, 2),
    Sketcher.Constraint("Tangent", 23, 1, 16, 1),
    Sketcher.Constraint("Vertical", 0),
    Sketcher.Constraint("Horizontal", 1),
    Sketcher.Constraint("Vertical", 2),
    Sketcher.Constraint("Horizontal", 3),
    Sketcher.Constraint("Vertical", 4),
    Sketcher.Constraint("Horizontal", 5),
    Sketcher.Constraint("Vertical", 6),
    Sketcher.Constraint("Horizontal", 7),
    Sketcher.Constraint("Horizontal", 8),
    Sketcher.Constraint("Vertical", 10),
    Sketcher.Constraint("Horizontal", 12),
    Sketcher.Constraint("Vertical", 14),
    Sketcher.Constraint("Horizontal", 16),
    Sketcher.Constraint("Vertical", 18),
    Sketcher.Constraint("Horizontal", 20),
    Sketcher.Constraint("Vertical", 22),
    Sketcher.Constraint("Equal", 9, 11),
    Sketcher.Constraint("Equal", 11, 13),
    Sketcher.Constraint("Equal", 13, 15),
    Sketcher.Constraint("Equal", 15, 17),
    Sketcher.Constraint("Equal", 17, 19),
    Sketcher.Constraint("Equal", 19, 21),
    Sketcher.Constraint("Equal", 21, 23),
    Sketcher.Constraint("Symmetric", 15, 3, 17, 3, -2),
    Sketcher.Constraint("Symmetric", 11, 3, 21, 3, -2),
    Sketcher.Constraint("Symmetric", 1, 2, 4, 2, -2),
    Sketcher.Constraint("Symmetric", 3, 2, 6, 2, -2),
    Sketcher.Constraint("Equal", 7, 10),
    Sketcher.Constraint("Radius", 9, Q("0.999999 mm")),
    Sketcher.Constraint("DistanceY", 0, 2, 0, 1, Q("5 mm")),
    Sketcher.Constraint("DistanceX", 1, 2, 1, 1, Q("7.5 mm")),
    Sketcher.Constraint("DistanceX", 8, 1, 8, 2, Q("7.3 mm")),
    Sketcher.Constraint("DistanceY", -1, 1, 11, 3, Q("2.999999 mm")),
    Sketcher.Constraint("DistanceX", -1, 1, 0, 2, Q("10 mm")),
    Sketcher.Constraint("DistanceY", 0, 2, 15, 3, Q("11.000001 mm")),
    Sketcher.Constraint("DistanceX", -1, 1, 9, 3, Q("19.400001 mm")),
])
pocket10 = body2.newObject("PartDesign::Pocket", "Pocket009")
pocket10.Profile = sketch14
pocket10.Length = 3.75
pocket10.Reversed = True

sketch15 = body2.newObject("Sketcher::SketchObject", "Sketch014")
sketch15.AttachmentSupport = (doc.getObject("XY_Plane001"), [""])
sketch15.MapMode = "FlatFace"
sketch15.AttachmentOffset = App.Placement(App.Vector(0, 0, 5), App.Rotation())
add_polygon(sketch15, [(-24.85, -5.5), (-24.85, 0.1), (-21.25, 0.1), (-22.5, -2.5), (-22.5, -3), (-21.75, -3.625), (-21.75, -4.875), (-22.5, -5.5)])
add_polygon(sketch15, [(24.85, 0.1), (24.85, -5.5), (22.5, -5.5), (21.75, -4.875), (21.75, -3.625), (22.5, -3), (22.5, -2.5), (21.25, 0.1)])
sketch15.addConstraint([
    Sketcher.Constraint("Vertical", 0),
    Sketcher.Constraint("Horizontal", 1),
    Sketcher.Constraint("Vertical", 3),
    Sketcher.Constraint("Vertical", 5),
    Sketcher.Constraint("Horizontal", 7),
    Sketcher.Constraint("Vertical", 8),
    Sketcher.Constraint("Horizontal", 9),
    Sketcher.Constraint("Vertical", 11),
    Sketcher.Constraint("Vertical", 13),
    Sketcher.Constraint("Horizontal", 15),
    Sketcher.Constraint("Symmetric", 7, 2, 8, 2, -2),
    Sketcher.Constraint("Symmetric", 5, 2, 10, 2, -2),
    Sketcher.Constraint("Symmetric", 3, 2, 12, 2, -2),
    Sketcher.Constraint("Symmetric", 1, 2, 14, 2, -2),
    Sketcher.Constraint("Parallel", 4, 10),
    Sketcher.Constraint("Parallel", 6, 12),
    Sketcher.Constraint("Horizontal", 4, 2, 11, 2),
    Sketcher.Constraint("Horizontal", 2, 2, 13, 2),
    Sketcher.Constraint("Vertical", 3, 2, 6, 2),
    Sketcher.Constraint("DistanceX", 1, 1, 1, 2, Q("3.6 mm")),
    Sketcher.Constraint("DistanceY", 0, 1, 0, 2, Q("5.6 mm")),
    Sketcher.Constraint("DistanceY", 3, 2, 3, 1, Q("0.5 mm")),
    Sketcher.Constraint("DistanceY", 3, 2, -1, 1, Q("3 mm")),
    Sketcher.Constraint("DistanceY", 6, 2, 2, 2, Q("3 mm")),
    Sketcher.Constraint("DistanceX", 6, 2, 9, 2, Q("45 mm")),
    Sketcher.Constraint("DistanceX", 1, 2, 10, 2, Q("43 mm")),
    Sketcher.Constraint("DistanceX", 7, 2, 7, 1, Q("2.35 mm")),
    Sketcher.Constraint("DistanceY", 5, 2, 5, 1, Q("1.25 mm")),
])
pocket11 = body2.newObject("PartDesign::Pocket", "Pocket010")
pocket11.Profile = sketch15
pocket11.Length = 45
pocket11.Reversed = True

sketch16 = body2.newObject("Sketcher::SketchObject", "Sketch015")
sketch16.AttachmentSupport = (doc.getObject("XZ_Plane001"), [""])
sketch16.MapMode = "FlatFace"
sketch16.AttachmentOffset = App.Placement(App.Vector(0, 0, 7.1), App.Rotation())
add_polygon(sketch16, [(-9, 6), (-9, 3.5), (9, 3.5), (9, 6)])
sketch16.addConstraint([
    Sketcher.Constraint("Vertical", 0),
    Sketcher.Constraint("Horizontal", 1),
    Sketcher.Constraint("Vertical", 2),
    Sketcher.Constraint("Horizontal", 3),
    Sketcher.Constraint("DistanceX", 1, 1, 1, 2, Q("18 mm")),
    Sketcher.Constraint("DistanceY", 0, 2, 0, 1, Q("2.5 mm")),
    Sketcher.Constraint("DistanceX", 0, 2, -1, 1, Q("9 mm")),
    Sketcher.Constraint("DistanceY", -1, 1, 2, 2, Q("6 mm")),
])
pocket12 = body2.newObject("PartDesign::Pocket", "Pocket011")
pocket12.Profile = sketch16
pocket12.Length = 2

sketch17 = body2.newObject("Sketcher::SketchObject", "Sketch016")
sketch17.AttachmentSupport = (doc.getObject("XY_Plane001"), [""])
sketch17.MapMode = "FlatFace"
sketch17.AttachmentOffset = App.Placement(App.Vector(0, 0, 3.5), App.Rotation())
add_polygon(sketch17, [(-5.55, -0.1), (-7.3, 2.9), (-7.3, -0.1)])
sketch17.addConstraint([
    Sketcher.Constraint("Vertical", 1),
    Sketcher.Constraint("Horizontal", 2),
    Sketcher.Constraint("DistanceY", 1, 2, 1, 1, Q("3 mm")),
    Sketcher.Constraint("DistanceX", 2, 1, 2, 2, Q("1.75 mm")),
    Sketcher.Constraint("DistanceX", 0, 2, -1, 1, Q("7.3 mm")),
    Sketcher.Constraint("DistanceY", -1, 1, 0, 2, Q("2.9 mm")),
])
pocket13 = body2.newObject("PartDesign::Pocket", "Pocket012")
pocket13.Profile = sketch17
pocket13.Length = 18
pocket13.Reversed = True

doc.recompute()
